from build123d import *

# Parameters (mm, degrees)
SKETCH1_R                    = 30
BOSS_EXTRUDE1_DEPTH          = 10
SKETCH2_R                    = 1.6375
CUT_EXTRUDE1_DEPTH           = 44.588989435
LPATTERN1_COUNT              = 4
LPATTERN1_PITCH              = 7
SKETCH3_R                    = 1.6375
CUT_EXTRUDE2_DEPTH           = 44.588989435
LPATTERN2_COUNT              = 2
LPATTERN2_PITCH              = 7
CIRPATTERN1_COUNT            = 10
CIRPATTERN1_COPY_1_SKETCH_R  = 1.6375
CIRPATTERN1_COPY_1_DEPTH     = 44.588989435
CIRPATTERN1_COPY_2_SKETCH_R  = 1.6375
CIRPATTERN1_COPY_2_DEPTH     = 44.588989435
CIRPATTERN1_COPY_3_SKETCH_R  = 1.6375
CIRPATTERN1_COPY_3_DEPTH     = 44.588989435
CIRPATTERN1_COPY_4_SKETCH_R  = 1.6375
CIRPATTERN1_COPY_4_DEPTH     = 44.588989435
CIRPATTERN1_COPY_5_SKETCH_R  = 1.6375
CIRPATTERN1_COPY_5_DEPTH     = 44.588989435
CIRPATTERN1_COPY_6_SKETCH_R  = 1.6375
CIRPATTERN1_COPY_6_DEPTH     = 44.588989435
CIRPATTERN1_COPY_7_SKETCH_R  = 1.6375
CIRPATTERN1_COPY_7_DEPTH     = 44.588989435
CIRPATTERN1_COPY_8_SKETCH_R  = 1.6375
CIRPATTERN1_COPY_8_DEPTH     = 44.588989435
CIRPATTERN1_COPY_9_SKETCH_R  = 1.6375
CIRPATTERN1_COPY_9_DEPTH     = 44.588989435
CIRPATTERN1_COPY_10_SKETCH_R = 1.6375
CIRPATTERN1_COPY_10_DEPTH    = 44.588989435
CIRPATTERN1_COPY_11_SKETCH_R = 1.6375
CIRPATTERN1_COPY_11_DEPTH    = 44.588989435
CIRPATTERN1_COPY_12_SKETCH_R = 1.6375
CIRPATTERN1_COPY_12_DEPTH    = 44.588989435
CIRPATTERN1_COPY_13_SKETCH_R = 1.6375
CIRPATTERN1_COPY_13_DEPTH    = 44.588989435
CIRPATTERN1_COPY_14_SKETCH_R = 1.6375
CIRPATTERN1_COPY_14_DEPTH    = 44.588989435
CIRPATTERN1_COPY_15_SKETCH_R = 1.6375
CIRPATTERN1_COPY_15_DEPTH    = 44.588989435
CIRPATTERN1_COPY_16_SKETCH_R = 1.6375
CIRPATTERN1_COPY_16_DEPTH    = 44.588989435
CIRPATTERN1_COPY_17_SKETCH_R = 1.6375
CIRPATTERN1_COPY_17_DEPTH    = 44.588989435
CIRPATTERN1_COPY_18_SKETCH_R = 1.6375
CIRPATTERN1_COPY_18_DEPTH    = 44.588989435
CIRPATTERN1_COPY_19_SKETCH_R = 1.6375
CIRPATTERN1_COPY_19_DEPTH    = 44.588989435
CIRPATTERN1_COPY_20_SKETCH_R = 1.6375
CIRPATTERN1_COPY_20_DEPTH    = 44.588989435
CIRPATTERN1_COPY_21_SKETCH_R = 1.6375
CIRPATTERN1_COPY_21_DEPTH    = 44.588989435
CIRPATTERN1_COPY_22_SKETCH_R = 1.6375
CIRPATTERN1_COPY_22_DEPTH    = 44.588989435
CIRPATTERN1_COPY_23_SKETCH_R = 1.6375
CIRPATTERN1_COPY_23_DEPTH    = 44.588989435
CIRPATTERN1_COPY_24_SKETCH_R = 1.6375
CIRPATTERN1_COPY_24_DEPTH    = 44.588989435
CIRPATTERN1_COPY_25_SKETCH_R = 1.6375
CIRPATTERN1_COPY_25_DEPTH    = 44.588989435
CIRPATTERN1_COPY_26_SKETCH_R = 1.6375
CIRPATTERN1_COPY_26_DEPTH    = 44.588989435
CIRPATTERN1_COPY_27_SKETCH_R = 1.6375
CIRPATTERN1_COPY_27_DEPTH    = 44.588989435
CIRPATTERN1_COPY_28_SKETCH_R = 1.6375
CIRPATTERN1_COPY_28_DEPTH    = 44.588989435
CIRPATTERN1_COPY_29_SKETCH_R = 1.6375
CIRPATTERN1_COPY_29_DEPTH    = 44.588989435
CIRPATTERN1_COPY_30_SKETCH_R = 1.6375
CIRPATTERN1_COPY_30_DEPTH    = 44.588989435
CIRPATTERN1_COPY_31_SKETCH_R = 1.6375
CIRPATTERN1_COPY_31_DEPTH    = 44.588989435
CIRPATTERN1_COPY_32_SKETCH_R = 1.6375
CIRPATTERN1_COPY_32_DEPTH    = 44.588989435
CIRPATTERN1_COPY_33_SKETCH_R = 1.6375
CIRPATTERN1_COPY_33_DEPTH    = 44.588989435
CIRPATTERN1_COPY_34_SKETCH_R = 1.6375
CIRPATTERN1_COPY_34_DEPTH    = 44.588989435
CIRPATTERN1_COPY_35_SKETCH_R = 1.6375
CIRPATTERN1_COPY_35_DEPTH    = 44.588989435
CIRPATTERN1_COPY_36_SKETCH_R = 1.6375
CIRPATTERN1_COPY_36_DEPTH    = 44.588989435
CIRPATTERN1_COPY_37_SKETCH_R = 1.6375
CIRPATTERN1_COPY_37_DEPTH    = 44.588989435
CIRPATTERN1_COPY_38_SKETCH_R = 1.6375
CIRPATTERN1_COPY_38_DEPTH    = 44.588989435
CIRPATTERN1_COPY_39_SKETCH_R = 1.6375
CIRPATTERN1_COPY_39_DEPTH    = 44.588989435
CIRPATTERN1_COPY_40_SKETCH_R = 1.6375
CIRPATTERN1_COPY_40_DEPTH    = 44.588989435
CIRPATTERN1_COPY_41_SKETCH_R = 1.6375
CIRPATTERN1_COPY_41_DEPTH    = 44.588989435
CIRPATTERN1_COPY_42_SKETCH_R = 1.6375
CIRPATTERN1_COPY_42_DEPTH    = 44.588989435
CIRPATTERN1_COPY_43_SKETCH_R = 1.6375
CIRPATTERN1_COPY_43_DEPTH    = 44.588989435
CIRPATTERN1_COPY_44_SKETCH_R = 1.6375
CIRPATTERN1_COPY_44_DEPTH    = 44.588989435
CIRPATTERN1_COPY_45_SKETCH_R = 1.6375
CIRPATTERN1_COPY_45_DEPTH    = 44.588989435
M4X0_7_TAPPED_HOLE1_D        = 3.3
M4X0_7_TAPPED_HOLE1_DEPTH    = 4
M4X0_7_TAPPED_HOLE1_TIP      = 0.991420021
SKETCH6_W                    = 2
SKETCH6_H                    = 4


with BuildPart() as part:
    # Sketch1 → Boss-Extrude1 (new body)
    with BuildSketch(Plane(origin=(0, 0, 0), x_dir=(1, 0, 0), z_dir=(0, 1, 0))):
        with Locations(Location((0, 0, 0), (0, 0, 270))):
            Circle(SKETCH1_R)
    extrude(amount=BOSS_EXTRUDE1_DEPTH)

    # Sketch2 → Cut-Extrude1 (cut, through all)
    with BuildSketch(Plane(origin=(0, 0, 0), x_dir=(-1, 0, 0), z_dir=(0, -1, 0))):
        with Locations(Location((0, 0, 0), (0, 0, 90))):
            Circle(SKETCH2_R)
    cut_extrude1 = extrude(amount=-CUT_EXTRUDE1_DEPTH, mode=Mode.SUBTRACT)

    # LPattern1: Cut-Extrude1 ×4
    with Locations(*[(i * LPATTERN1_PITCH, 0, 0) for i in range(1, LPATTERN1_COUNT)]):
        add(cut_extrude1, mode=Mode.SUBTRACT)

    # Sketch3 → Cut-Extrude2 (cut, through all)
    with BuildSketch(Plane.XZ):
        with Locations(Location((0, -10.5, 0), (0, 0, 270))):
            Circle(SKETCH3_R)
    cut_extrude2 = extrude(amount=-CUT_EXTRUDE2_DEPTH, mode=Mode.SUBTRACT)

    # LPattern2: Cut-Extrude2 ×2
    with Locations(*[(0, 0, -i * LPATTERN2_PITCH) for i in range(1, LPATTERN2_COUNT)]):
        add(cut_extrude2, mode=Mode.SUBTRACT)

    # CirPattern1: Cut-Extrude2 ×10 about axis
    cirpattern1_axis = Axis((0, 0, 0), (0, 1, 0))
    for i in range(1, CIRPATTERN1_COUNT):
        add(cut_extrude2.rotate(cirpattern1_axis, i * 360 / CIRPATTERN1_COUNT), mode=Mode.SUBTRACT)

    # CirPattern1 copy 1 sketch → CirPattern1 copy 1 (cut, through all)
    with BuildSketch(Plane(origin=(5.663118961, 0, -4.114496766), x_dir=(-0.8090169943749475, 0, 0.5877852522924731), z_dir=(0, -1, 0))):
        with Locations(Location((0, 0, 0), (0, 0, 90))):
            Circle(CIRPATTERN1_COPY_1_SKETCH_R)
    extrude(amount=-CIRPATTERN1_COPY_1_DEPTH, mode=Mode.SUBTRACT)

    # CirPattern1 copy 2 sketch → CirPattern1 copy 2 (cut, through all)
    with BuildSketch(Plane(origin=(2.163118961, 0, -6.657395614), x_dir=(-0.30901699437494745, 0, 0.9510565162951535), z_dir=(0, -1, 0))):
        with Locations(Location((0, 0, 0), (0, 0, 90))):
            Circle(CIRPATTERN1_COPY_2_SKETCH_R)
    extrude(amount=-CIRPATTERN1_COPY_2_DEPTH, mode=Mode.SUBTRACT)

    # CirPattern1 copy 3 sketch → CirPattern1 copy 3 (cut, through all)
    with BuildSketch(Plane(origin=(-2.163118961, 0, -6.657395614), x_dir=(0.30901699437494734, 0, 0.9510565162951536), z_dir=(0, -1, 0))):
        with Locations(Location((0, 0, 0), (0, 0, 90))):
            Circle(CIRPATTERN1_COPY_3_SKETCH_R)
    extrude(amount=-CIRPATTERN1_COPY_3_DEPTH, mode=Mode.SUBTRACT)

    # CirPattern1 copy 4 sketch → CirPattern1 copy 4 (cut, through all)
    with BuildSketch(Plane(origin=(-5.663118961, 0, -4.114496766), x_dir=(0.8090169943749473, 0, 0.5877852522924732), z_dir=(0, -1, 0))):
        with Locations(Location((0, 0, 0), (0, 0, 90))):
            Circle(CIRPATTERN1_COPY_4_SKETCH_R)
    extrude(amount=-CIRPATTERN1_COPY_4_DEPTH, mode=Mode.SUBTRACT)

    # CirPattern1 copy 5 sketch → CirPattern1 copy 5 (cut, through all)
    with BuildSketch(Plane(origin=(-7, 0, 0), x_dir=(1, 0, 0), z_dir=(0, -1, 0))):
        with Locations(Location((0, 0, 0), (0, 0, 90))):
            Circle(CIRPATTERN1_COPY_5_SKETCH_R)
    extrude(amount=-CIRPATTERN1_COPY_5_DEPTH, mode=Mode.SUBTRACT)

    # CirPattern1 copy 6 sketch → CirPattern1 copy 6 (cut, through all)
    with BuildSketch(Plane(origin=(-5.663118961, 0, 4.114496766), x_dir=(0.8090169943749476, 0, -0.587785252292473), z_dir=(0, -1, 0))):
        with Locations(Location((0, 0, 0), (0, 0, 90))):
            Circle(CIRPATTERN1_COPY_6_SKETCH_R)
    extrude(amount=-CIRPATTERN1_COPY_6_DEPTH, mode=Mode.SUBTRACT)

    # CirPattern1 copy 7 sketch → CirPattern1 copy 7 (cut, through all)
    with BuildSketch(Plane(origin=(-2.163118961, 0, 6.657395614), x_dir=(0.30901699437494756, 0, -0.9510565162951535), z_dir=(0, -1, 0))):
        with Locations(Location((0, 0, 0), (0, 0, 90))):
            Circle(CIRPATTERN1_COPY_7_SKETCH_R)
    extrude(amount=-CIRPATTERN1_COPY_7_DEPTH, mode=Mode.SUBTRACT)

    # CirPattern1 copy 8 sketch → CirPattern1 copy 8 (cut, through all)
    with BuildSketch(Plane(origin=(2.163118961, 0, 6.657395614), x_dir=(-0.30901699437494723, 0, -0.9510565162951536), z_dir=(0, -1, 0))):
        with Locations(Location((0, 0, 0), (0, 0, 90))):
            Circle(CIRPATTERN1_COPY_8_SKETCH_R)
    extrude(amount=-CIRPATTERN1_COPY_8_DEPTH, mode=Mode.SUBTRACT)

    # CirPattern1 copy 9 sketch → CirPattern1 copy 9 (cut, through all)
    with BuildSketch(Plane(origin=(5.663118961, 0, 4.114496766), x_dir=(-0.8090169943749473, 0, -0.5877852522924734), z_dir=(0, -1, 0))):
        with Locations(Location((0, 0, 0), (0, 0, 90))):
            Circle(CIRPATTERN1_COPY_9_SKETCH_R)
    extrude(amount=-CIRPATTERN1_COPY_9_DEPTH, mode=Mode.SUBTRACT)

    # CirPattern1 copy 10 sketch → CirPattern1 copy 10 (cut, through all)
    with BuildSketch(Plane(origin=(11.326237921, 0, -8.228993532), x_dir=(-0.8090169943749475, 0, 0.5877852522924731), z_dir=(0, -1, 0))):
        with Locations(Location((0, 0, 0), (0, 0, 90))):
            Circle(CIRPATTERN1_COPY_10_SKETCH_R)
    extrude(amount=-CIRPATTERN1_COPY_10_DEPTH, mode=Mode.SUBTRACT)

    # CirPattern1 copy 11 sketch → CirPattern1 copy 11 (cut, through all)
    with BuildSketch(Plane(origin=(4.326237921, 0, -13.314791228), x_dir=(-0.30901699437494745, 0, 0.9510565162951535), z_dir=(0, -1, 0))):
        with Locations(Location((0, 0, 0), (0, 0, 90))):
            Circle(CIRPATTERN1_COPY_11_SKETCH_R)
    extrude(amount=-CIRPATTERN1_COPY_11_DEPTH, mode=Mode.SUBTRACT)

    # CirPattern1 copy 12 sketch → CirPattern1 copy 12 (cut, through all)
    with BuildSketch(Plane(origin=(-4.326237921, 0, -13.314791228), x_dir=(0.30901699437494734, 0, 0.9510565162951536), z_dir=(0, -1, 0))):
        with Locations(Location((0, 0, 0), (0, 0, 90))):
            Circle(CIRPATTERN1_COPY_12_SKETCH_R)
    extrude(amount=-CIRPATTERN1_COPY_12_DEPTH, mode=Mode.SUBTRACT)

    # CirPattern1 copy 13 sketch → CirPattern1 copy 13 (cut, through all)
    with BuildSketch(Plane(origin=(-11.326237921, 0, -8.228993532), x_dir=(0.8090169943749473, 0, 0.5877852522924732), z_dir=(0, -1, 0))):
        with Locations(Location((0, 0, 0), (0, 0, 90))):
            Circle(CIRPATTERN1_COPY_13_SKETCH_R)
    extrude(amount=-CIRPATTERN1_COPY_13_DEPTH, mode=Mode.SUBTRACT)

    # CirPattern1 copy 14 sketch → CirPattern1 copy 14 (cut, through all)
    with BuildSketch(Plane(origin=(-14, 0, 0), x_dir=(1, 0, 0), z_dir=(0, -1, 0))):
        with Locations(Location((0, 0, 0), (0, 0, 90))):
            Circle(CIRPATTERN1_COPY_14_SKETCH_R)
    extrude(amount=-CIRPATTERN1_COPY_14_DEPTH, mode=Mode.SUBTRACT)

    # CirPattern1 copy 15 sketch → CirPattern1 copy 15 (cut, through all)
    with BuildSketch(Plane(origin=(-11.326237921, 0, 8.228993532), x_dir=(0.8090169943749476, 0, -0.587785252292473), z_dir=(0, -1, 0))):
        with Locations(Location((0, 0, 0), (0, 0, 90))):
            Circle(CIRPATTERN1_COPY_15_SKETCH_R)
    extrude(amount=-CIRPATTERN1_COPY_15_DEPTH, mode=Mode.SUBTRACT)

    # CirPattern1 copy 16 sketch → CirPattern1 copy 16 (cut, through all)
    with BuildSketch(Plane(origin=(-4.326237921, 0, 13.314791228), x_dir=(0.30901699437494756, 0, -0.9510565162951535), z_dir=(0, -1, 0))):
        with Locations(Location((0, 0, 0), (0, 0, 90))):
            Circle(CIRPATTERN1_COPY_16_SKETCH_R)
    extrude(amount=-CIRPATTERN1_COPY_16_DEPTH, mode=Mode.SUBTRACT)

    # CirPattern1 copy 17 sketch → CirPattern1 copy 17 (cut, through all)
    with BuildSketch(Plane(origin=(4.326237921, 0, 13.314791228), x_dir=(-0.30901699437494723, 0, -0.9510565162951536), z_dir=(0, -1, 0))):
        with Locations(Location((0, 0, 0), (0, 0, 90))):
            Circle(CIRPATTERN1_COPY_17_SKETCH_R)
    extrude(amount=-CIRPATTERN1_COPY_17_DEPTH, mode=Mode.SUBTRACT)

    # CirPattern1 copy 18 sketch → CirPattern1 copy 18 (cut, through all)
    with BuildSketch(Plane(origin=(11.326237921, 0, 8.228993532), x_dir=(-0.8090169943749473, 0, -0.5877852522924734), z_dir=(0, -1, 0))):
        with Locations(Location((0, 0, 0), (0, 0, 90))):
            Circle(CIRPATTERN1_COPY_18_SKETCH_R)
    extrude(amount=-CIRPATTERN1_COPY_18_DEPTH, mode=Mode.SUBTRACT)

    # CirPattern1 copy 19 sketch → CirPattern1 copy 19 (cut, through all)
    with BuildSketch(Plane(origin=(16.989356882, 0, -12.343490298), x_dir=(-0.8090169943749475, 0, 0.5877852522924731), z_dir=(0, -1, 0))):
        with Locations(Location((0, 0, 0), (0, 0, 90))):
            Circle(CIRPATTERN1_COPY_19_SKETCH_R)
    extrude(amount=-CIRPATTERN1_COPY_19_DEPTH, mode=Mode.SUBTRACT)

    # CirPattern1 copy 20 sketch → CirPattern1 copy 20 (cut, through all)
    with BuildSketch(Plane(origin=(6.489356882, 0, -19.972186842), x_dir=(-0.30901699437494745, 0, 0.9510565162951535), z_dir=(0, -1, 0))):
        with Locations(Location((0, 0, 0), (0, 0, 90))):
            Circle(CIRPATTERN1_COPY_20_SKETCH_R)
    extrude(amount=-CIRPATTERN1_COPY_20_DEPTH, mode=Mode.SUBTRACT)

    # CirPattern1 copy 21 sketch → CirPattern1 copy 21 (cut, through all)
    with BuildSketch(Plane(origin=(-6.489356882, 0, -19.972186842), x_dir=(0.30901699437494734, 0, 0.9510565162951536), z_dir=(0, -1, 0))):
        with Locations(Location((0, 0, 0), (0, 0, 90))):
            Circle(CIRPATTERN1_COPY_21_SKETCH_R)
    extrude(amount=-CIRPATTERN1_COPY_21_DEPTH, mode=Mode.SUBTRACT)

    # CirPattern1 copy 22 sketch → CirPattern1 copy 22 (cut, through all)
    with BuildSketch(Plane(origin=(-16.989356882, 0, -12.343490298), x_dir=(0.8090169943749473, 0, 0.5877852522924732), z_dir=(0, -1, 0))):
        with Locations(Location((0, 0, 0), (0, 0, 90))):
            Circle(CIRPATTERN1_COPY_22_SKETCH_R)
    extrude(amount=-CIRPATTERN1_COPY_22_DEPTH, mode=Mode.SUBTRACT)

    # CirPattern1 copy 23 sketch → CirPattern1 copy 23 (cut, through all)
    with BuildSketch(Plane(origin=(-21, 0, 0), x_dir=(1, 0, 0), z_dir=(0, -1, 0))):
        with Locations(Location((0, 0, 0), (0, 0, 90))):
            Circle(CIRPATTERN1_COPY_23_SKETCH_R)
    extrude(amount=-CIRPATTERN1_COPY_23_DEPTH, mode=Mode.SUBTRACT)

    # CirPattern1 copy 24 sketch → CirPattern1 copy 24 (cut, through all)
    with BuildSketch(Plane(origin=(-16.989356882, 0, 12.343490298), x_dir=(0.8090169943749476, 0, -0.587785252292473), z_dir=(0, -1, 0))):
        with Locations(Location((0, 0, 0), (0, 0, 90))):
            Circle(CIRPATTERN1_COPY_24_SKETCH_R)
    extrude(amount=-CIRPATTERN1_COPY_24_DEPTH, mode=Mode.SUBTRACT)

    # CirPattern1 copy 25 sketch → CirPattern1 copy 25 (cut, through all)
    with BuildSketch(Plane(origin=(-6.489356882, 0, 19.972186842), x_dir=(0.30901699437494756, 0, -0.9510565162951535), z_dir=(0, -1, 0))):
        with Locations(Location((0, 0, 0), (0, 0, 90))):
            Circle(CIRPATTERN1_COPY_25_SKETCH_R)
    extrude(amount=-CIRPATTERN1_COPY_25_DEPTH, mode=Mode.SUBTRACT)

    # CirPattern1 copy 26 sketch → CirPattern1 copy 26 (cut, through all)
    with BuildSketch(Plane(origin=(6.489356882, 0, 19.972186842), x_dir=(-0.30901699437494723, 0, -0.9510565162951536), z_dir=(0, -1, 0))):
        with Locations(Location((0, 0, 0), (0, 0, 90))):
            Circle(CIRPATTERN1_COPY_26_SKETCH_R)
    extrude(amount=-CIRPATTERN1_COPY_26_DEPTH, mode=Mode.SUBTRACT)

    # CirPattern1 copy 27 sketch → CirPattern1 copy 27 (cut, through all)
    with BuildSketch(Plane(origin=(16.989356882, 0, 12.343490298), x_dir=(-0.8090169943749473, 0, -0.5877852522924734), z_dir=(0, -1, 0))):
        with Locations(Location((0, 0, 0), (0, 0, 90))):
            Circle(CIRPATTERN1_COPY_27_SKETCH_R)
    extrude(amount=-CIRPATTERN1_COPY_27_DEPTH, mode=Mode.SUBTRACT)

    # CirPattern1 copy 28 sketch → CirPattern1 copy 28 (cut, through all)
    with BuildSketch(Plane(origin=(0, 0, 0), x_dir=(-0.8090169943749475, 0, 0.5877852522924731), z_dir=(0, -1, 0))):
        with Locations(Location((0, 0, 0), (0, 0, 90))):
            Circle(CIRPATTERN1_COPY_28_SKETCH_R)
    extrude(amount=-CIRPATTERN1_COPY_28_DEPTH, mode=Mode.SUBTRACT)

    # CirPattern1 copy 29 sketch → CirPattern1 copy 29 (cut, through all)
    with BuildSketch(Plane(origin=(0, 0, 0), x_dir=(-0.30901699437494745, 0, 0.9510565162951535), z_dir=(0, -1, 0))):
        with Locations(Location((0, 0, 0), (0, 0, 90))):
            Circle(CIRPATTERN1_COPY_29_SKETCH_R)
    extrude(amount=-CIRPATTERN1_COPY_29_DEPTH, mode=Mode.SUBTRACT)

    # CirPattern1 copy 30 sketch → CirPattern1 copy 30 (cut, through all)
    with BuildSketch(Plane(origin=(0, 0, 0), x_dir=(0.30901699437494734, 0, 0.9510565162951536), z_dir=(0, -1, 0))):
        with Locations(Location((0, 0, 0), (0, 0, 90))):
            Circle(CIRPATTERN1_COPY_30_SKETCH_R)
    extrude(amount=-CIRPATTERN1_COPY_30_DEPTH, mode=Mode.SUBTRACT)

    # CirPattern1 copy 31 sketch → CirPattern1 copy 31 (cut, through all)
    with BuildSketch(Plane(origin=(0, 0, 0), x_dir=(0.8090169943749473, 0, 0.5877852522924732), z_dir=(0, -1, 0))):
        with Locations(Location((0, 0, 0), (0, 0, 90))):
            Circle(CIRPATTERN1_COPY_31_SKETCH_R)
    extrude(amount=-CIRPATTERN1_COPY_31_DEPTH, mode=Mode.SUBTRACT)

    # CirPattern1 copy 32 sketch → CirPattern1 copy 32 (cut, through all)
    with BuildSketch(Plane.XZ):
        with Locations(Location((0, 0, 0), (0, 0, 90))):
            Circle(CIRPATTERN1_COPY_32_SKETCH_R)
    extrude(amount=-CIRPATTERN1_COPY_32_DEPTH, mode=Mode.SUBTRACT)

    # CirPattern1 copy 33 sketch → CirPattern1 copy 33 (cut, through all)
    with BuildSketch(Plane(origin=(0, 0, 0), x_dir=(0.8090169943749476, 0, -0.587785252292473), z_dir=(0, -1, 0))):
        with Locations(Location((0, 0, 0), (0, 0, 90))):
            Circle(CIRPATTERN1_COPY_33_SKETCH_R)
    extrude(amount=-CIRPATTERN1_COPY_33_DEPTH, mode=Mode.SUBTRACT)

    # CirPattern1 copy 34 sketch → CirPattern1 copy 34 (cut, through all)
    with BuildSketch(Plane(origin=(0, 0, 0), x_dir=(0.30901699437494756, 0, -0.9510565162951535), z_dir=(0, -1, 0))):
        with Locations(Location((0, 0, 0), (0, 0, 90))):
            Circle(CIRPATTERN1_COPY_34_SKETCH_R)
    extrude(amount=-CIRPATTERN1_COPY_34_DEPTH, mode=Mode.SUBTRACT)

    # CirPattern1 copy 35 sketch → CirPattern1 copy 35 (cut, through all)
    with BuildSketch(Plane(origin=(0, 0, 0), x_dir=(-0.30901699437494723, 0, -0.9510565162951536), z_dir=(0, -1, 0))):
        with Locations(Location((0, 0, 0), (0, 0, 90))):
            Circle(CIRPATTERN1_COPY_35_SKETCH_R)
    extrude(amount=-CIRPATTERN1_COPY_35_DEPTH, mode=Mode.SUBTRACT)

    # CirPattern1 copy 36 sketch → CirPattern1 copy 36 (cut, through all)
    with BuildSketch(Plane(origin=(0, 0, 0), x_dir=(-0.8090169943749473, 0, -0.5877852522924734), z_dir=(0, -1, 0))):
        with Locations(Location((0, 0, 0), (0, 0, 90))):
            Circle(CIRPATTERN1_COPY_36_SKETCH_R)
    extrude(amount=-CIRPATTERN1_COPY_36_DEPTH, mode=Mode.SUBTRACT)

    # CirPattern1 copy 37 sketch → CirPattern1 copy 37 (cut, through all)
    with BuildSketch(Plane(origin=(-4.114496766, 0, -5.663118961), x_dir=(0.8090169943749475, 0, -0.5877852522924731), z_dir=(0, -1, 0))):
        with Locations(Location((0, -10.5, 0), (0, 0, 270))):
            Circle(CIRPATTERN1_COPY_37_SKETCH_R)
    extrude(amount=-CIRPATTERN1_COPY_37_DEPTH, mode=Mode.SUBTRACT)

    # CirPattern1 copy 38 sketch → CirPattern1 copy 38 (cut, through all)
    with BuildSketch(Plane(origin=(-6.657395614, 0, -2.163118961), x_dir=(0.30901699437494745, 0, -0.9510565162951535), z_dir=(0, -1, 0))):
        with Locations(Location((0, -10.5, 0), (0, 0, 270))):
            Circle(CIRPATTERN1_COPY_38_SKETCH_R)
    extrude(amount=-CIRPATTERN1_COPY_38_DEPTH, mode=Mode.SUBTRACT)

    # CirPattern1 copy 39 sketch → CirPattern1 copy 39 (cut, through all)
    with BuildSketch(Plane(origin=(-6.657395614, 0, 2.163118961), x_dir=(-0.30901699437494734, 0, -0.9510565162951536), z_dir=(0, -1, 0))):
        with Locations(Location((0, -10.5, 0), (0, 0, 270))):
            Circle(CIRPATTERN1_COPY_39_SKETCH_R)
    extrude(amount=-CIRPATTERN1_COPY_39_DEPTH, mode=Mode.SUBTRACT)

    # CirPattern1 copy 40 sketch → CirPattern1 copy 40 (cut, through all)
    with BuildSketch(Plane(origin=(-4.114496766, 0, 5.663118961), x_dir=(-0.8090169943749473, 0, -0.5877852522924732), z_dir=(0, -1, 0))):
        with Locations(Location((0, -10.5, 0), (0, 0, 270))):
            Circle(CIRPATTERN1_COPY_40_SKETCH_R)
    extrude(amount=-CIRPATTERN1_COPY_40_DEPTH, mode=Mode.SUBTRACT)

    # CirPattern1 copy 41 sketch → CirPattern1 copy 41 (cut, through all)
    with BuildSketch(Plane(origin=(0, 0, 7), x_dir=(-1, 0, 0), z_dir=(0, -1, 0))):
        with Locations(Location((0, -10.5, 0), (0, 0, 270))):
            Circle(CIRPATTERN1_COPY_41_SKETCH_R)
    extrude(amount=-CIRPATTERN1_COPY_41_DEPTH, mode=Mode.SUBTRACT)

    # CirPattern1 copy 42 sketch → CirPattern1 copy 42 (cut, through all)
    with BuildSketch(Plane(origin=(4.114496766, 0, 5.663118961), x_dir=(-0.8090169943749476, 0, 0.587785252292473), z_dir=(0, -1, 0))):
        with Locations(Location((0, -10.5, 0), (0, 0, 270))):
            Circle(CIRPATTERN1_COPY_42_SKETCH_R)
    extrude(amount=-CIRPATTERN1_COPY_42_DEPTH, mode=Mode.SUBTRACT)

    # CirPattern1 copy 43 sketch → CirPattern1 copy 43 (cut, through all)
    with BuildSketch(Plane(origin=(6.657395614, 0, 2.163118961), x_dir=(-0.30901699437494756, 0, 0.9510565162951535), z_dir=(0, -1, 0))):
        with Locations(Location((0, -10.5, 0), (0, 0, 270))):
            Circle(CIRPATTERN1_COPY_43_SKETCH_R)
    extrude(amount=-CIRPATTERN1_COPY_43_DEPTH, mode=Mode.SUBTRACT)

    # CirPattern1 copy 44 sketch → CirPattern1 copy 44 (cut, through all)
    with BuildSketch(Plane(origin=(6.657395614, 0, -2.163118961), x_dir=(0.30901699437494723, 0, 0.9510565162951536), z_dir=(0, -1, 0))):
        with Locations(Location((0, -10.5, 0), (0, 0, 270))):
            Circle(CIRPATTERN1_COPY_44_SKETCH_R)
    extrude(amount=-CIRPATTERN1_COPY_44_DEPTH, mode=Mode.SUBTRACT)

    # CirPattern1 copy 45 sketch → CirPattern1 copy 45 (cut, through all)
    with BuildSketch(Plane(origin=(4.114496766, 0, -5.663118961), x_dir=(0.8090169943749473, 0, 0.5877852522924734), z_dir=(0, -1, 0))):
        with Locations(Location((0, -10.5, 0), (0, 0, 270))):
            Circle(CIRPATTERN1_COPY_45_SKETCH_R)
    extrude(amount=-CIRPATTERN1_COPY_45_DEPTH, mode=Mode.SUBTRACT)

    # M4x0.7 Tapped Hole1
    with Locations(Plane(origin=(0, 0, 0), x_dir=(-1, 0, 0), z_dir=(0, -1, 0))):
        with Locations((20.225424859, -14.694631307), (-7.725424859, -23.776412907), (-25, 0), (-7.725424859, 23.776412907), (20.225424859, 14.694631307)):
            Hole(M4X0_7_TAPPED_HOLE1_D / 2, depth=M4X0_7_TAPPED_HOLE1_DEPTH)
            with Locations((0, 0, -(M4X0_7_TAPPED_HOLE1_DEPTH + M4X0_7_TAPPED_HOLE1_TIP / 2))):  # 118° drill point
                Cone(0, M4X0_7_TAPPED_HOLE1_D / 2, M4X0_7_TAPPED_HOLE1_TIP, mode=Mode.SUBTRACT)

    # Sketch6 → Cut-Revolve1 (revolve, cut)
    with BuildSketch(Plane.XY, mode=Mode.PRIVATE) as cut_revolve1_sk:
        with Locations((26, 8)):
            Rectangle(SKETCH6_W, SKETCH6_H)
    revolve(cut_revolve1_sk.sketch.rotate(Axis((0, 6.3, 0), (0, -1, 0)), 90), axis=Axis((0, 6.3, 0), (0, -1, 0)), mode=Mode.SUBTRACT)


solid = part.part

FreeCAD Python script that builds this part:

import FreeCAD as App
import Part
import Sketcher
from FreeCAD import Vector


def add_polygon(sketch, points):
    """Adds a closed chain of lines whose ends are joined by coincident constraints."""
    first, n = sketch.GeometryCount, len(points)
    for a, b in zip(points, points[1:] + points[:1]):
        sketch.addGeometry(Part.LineSegment(App.Vector(*a, 0), App.Vector(*b, 0)), False)
    for i in range(n):
        sketch.addConstraint(Sketcher.Constraint("Coincident", first + i, 2, first + (i + 1) % n, 1))

doc = App.newDocument("Part")
body = doc.addObject("PartDesign::Body", "Body")

sketch1 = body.newObject("Sketcher::SketchObject", "Sketch")
sketch1.AttachmentSupport = (doc.getObject("XZ_Plane"), [""])
sketch1.MapMode = "FlatFace"
sketch1.addGeometry(Part.Circle(Vector(0, 0, 0), Vector(0, 0, 1), 30), False)
sketch1.addConstraint(Sketcher.Constraint("Coincident", 0, 3, -1, 1))
sketch1.addConstraint(Sketcher.Constraint("Diameter", 0, 60.0))
pad1 = body.newObject("PartDesign::Pad", "Pad")
pad1.Profile = sketch1
pad1.Length = 10
pad1.Reversed = True

sketch2 = body.newObject("Sketcher::SketchObject", "Sketch001")
sketch2.AttachmentSupport = (doc.getObject("XZ_Plane"), [""])
sketch2.MapMode = "FlatFace"
sketch2.addGeometry(Part.Circle(Vector(0, 0, 0), Vector(0, 0, 1), 1.6375), False)
sketch2.addConstraint(Sketcher.Constraint("Coincident", 0, 3, -1, 1))
sketch2.addConstraint(Sketcher.Constraint("Diameter", 0, 3.275))
pocket1 = body.newObject("PartDesign::Pocket", "Pocket")
pocket1.Profile = sketch2
pocket1.Type = "ThroughAll"
doc.recompute()

linearpattern = body.newObject("PartDesign::LinearPattern", "LinearPattern")
linearpattern.Originals = [pocket1]
linearpattern.Direction = (doc.getObject("X_Axis"), [""])
linearpattern.Mode = "offset"
linearpattern.Offset = 7
linearpattern.Occurrences = 4
body.Tip = linearpattern

sketch3 = body.newObject("Sketcher::SketchObject", "Sketch002")
sketch3.AttachmentSupport = (doc.getObject("XZ_Plane"), [""])
sketch3.MapMode = "FlatFace"
sketch3.addGeometry(Part.Circle(Vector(0, -10.5, 0), Vector(0, 0, 1), 1.6375), False)
sketch3.addConstraint(Sketcher.Constraint("PointOnObject", 0, 3, -2))
sketch3.addConstraint(Sketcher.Constraint("Diameter", 0, 3.275))
sketch3.addConstraint(Sketcher.Constraint("DistanceY", 0, 3, -1, 1, 10.5))
pocket2 = body.newObject("PartDesign::Pocket", "Pocket001")
pocket2.Profile = sketch3
pocket2.Type = "ThroughAll"
doc.recompute()

linearpattern2 = body.newObject("PartDesign::LinearPattern", "LinearPattern001")
linearpattern2.Originals = [pocket2]
linearpattern2.Direction = (doc.getObject("Z_Axis"), [""])
linearpattern2.Mode = "offset"
linearpattern2.Offset = 7
linearpattern2.Occurrences = 2
linearpattern2.Reversed = True
body.Tip = linearpattern2
doc.recompute()

polarpattern = body.newObject("PartDesign::PolarPattern", "PolarPattern")
polarpattern.Originals = [pocket2]
polarpattern.Axis = (doc.getObject("Y_Axis"), [""])
polarpattern.Angle = 360
polarpattern.Occurrences = 10
body.Tip = polarpattern

sketch4 = body.newObject("Sketcher::SketchObject", "Sketch003")
sketch4.AttachmentSupport = (doc.getObject("XZ_Plane"), [""])
sketch4.MapMode = "FlatFace"
sketch4.addGeometry(Part.Circle(Vector(5.663119, -4.114497, 0), Vector(0, 0, 1), 1.6375), False)
sketch4.addConstraint(Sketcher.Constraint("Diameter", 0, 3.275))
sketch4.addConstraint(Sketcher.Constraint("DistanceX", -1, 1, 0, 3, 5.663119))
sketch4.addConstraint(Sketcher.Constraint("DistanceY", 0, 3, -1, 1, 4.114497))
pocket3 = body.newObject("PartDesign::Pocket", "Pocket002")
pocket3.Profile = sketch4
pocket3.Type = "ThroughAll"

sketch5 = body.newObject("Sketcher::SketchObject", "Sketch004")
sketch5.AttachmentSupport = (doc.getObject("XZ_Plane"), [""])
sketch5.MapMode = "FlatFace"
sketch5.addGeometry(Part.Circle(Vector(2.163119, -6.657396, 0), Vector(0, 0, 1), 1.6375), False)
sketch5.addConstraint(Sketcher.Constraint("Diameter", 0, 3.275))
sketch5.addConstraint(Sketcher.Constraint("DistanceX", -1, 1, 0, 3, 2.163119))
sketch5.addConstraint(Sketcher.Constraint("DistanceY", 0, 3, -1, 1, 6.657396))
pocket4 = body.newObject("PartDesign::Pocket", "Pocket003")
pocket4.Profile = sketch5
pocket4.Type = "ThroughAll"

sketch6 = body.newObject("Sketcher::SketchObject", "Sketch005")
sketch6.AttachmentSupport = (doc.getObject("XZ_Plane"), [""])
sketch6.MapMode = "FlatFace"
sketch6.addGeometry(Part.Circle(Vector(-2.163119, -6.657396, 0), Vector(0, 0, 1), 1.6375), False)
sketch6.addConstraint(Sketcher.Constraint("Diameter", 0, 3.275))
sketch6.addConstraint(Sketcher.Constraint("DistanceX", 0, 3, -1, 1, 2.163119))
sketch6.addConstraint(Sketcher.Constraint("DistanceY", 0, 3, -1, 1, 6.657396))
pocket5 = body.newObject("PartDesign::Pocket", "Pocket004")
pocket5.Profile = sketch6
pocket5.Type = "ThroughAll"

sketch7 = body.newObject("Sketcher::SketchObject", "Sketch006")
sketch7.AttachmentSupport = (doc.getObject("XZ_Plane"), [""])
sketch7.MapMode = "FlatFace"
sketch7.addGeometry(Part.Circle(Vector(-5.663119, -4.114497, 0), Vector(0, 0, 1), 1.6375), False)
sketch7.addConstraint(Sketcher.Constraint("Diameter", 0, 3.275))
sketch7.addConstraint(Sketcher.Constraint("DistanceX", 0, 3, -1, 1, 5.663119))
sketch7.addConstraint(Sketcher.Constraint("DistanceY", 0, 3, -1, 1, 4.114497))
pocket6 = body.newObject("PartDesign::Pocket", "Pocket005")
pocket6.Profile = sketch7
pocket6.Type = "ThroughAll"

sketch8 = body.newObject("Sketcher::SketchObject", "Sketch007")
sketch8.AttachmentSupport = (doc.getObject("XZ_Plane"), [""])
sketch8.MapMode = "FlatFace"
sketch8.addGeometry(Part.Circle(Vector(-7, 0, 0), Vector(0, 0, 1), 1.6375), False)
sketch8.addConstraint(Sketcher.Constraint("PointOnObject", 0, 3, -1))
sketch8.addConstraint(Sketcher.Constraint("Diameter", 0, 3.275))
sketch8.addConstraint(Sketcher.Constraint("DistanceX", 0, 3, -1, 1, 7.0))
pocket7 = body.newObject("PartDesign::Pocket", "Pocket006")
pocket7.Profile = sketch8
pocket7.Type = "ThroughAll"

sketch9 = body.newObject("Sketcher::SketchObject", "Sketch008")
sketch9.AttachmentSupport = (doc.getObject("XZ_Plane"), [""])
sketch9.MapMode = "FlatFace"
sketch9.addGeometry(Part.Circle(Vector(-5.663119, 4.114497, 0), Vector(0, 0, 1), 1.6375), False)
sketch9.addConstraint(Sketcher.Constraint("Diameter", 0, 3.275))
sketch9.addConstraint(Sketcher.Constraint("DistanceX", 0, 3, -1, 1, 5.663119))
sketch9.addConstraint(Sketcher.Constraint("DistanceY", -1, 1, 0, 3, 4.114497))
pocket8 = body.newObject("PartDesign::Pocket", "Pocket007")
pocket8.Profile = sketch9
pocket8.Type = "ThroughAll"

sketch10 = body.newObject("Sketcher::SketchObject", "Sketch009")
sketch10.AttachmentSupport = (doc.getObject("XZ_Plane"), [""])
sketch10.MapMode = "FlatFace"
sketch10.addGeometry(Part.Circle(Vector(-2.163119, 6.657396, 0), Vector(0, 0, 1), 1.6375), False)
sketch10.addConstraint(Sketcher.Constraint("Diameter", 0, 3.275))
sketch10.addConstraint(Sketcher.Constraint("DistanceX", 0, 3, -1, 1, 2.163119))
sketch10.addConstraint(Sketcher.Constraint("DistanceY", -1, 1, 0, 3, 6.657396))
pocket9 = body.newObject("PartDesign::Pocket", "Pocket008")
pocket9.Profile = sketch10
pocket9.Type = "ThroughAll"

sketch11 = body.newObject("Sketcher::SketchObject", "Sketch010")
sketch11.AttachmentSupport = (doc.getObject("XZ_Plane"), [""])
sketch11.MapMode = "FlatFace"
sketch11.addGeometry(Part.Circle(Vector(2.163119, 6.657396, 0), Vector(0, 0, 1), 1.6375), False)
sketch11.addConstraint(Sketcher.Constraint("Diameter", 0, 3.275))
sketch11.addConstraint(Sketcher.Constraint("DistanceX", -1, 1, 0, 3, 2.163119))
sketch11.addConstraint(Sketcher.Constraint("DistanceY", -1, 1, 0, 3, 6.657396))
pocket10 = body.newObject("PartDesign::Pocket", "Pocket009")
pocket10.Profile = sketch11
pocket10.Type = "ThroughAll"

sketch12 = body.newObject("Sketcher::SketchObject", "Sketch011")
sketch12.AttachmentSupport = (doc.getObject("XZ_Plane"), [""])
sketch12.MapMode = "FlatFace"
sketch12.addGeometry(Part.Circle(Vector(5.663119, 4.114497, 0), Vector(0, 0, 1), 1.6375), False)
sketch12.addConstraint(Sketcher.Constraint("Diameter", 0, 3.275))
sketch12.addConstraint(Sketcher.Constraint("DistanceX", -1, 1, 0, 3, 5.663119))
sketch12.addConstraint(Sketcher.Constraint("DistanceY", -1, 1, 0, 3, 4.114497))
pocket11 = body.newObject("PartDesign::Pocket", "Pocket010")
pocket11.Profile = sketch12
pocket11.Type = "ThroughAll"

sketch13 = body.newObject("Sketcher::SketchObject", "Sketch012")
sketch13.AttachmentSupport = (doc.getObject("XZ_Plane"), [""])
sketch13.MapMode = "FlatFace"
sketch13.addGeometry(Part.Circle(Vector(11.326238, -8.228994, 0), Vector(0, 0, 1), 1.6375), False)
sketch13.addConstraint(Sketcher.Constraint("Diameter", 0, 3.275))
sketch13.addConstraint(Sketcher.Constraint("DistanceX", -1, 1, 0, 3, 11.326238))
sketch13.addConstraint(Sketcher.Constraint("DistanceY", 0, 3, -1, 1, 8.228994))
pocket12 = body.newObject("PartDesign::Pocket", "Pocket011")
pocket12.Profile = sketch13
pocket12.Type = "ThroughAll"

sketch14 = body.newObject("Sketcher::SketchObject", "Sketch013")
sketch14.AttachmentSupport = (doc.getObject("XZ_Plane"), [""])
sketch14.MapMode = "FlatFace"
sketch14.addGeometry(Part.Circle(Vector(4.326238, -13.314791, 0), Vector(0, 0, 1), 1.6375), False)
sketch14.addConstraint(Sketcher.Constraint("Diameter", 0, 3.275))
sketch14.addConstraint(Sketcher.Constraint("DistanceY", 0, 3, -1, 1, 13.314791))
sketch14.addConstraint(Sketcher.Constraint("DistanceX", -1, 1, 0, 3, 4.326238))
pocket13 = body.newObject("PartDesign::Pocket", "Pocket012")
pocket13.Profile = sketch14
pocket13.Type = "ThroughAll"

sketch15 = body.newObject("Sketcher::SketchObject", "Sketch014")
sketch15.AttachmentSupport = (doc.getObject("XZ_Plane"), [""])
sketch15.MapMode = "FlatFace"
sketch15.addGeometry(Part.Circle(Vector(-4.326238, -13.314791, 0), Vector(0, 0, 1), 1.6375), False)
sketch15.addConstraint(Sketcher.Constraint("Diameter", 0, 3.275))
sketch15.addConstraint(Sketcher.Constraint("DistanceY", 0, 3, -1, 1, 13.314791))
sketch15.addConstraint(Sketcher.Constraint("DistanceX", 0, 3, -1, 1, 4.326238))
pocket14 = body.newObject("PartDesign::Pocket", "Pocket013")
pocket14.Profile = sketch15
pocket14.Type = "ThroughAll"

sketch16 = body.newObject("Sketcher::SketchObject", "Sketch015")
sketch16.AttachmentSupport = (doc.getObject("XZ_Plane"), [""])
sketch16.MapMode = "FlatFace"
sketch16.addGeometry(Part.Circle(Vector(-11.326238, -8.228994, 0), Vector(0, 0, 1), 1.6375), False)
sketch16.addConstraint(Sketcher.Constraint("Diameter", 0, 3.275))
sketch16.addConstraint(Sketcher.Constraint("DistanceX", 0, 3, -1, 1, 11.326238))
sketch16.addConstraint(Sketcher.Constraint("DistanceY", 0, 3, -1, 1, 8.228994))
pocket15 = body.newObject("PartDesign::Pocket", "Pocket014")
pocket15.Profile = sketch16
pocket15.Type = "ThroughAll"

sketch17 = body.newObject("Sketcher::SketchObject", "Sketch016")
sketch17.AttachmentSupport = (doc.getObject("XZ_Plane"), [""])
sketch17.MapMode = "FlatFace"
sketch17.addGeometry(Part.Circle(Vector(-14, 0, 0), Vector(0, 0, 1), 1.6375), False)
sketch17.addConstraint(Sketcher.Constraint("PointOnObject", 0, 3, -1))
sketch17.addConstraint(Sketcher.Constraint("Diameter", 0, 3.275))
sketch17.addConstraint(Sketcher.Constraint("DistanceX", 0, 3, -1, 1, 14.0))
pocket16 = body.newObject("PartDesign::Pocket", "Pocket015")
pocket16.Profile = sketch17
pocket16.Type = "ThroughAll"

sketch18 = body.newObject("Sketcher::SketchObject", "Sketch017")
sketch18.AttachmentSupport = (doc.getObject("XZ_Plane"), [""])
sketch18.MapMode = "FlatFace"
sketch18.addGeometry(Part.Circle(Vector(-11.326238, 8.228994, 0), Vector(0, 0, 1), 1.6375), False)
sketch18.addConstraint(Sketcher.Constraint("Diameter", 0, 3.275))
sketch18.addConstraint(Sketcher.Constraint("DistanceX", 0, 3, -1, 1, 11.326238))
sketch18.addConstraint(Sketcher.Constraint("DistanceY", -1, 1, 0, 3, 8.228994))
pocket17 = body.newObject("PartDesign::Pocket", "Pocket016")
pocket17.Profile = sketch18
pocket17.Type = "ThroughAll"

sketch19 = body.newObject("Sketcher::SketchObject", "Sketch018")
sketch19.AttachmentSupport = (doc.getObject("XZ_Plane"), [""])
sketch19.MapMode = "FlatFace"
sketch19.addGeometry(Part.Circle(Vector(-4.326238, 13.314791, 0), Vector(0, 0, 1), 1.6375), False)
sketch19.addConstraint(Sketcher.Constraint("Diameter", 0, 3.275))
sketch19.addConstraint(Sketcher.Constraint("DistanceY", -1, 1, 0, 3, 13.314791))
sketch19.addConstraint(Sketcher.Constraint("DistanceX", 0, 3, -1, 1, 4.326238))
pocket18 = body.newObject("PartDesign::Pocket", "Pocket017")
pocket18.Profile = sketch19
pocket18.Type = "ThroughAll"

sketch20 = body.newObject("Sketcher::SketchObject", "Sketch019")
sketch20.AttachmentSupport = (doc.getObject("XZ_Plane"), [""])
sketch20.MapMode = "FlatFace"
sketch20.addGeometry(Part.Circle(Vector(4.326238, 13.314791, 0), Vector(0, 0, 1), 1.6375), False)
sketch20.addConstraint(Sketcher.Constraint("Diameter", 0, 3.275))
sketch20.addConstraint(Sketcher.Constraint("DistanceY", -1, 1, 0, 3, 13.314791))
sketch20.addConstraint(Sketcher.Constraint("DistanceX", -1, 1, 0, 3, 4.326238))
pocket19 = body.newObject("PartDesign::Pocket", "Pocket018")
pocket19.Profile = sketch20
pocket19.Type = "ThroughAll"

sketch21 = body.newObject("Sketcher::SketchObject", "Sketch020")
sketch21.AttachmentSupport = (doc.getObject("XZ_Plane"), [""])
sketch21.MapMode = "FlatFace"
sketch21.addGeometry(Part.Circle(Vector(11.326238, 8.228994, 0), Vector(0, 0, 1), 1.6375), False)
sketch21.addConstraint(Sketcher.Constraint("Diameter", 0, 3.275))
sketch21.addConstraint(Sketcher.Constraint("DistanceX", -1, 1, 0, 3, 11.326238))
sketch21.addConstraint(Sketcher.Constraint("DistanceY", -1, 1, 0, 3, 8.228994))
pocket20 = body.newObject("PartDesign::Pocket", "Pocket019")
pocket20.Profile = sketch21
pocket20.Type = "ThroughAll"

sketch22 = body.newObject("Sketcher::SketchObject", "Sketch021")
sketch22.AttachmentSupport = (doc.getObject("XZ_Plane"), [""])
sketch22.MapMode = "FlatFace"
sketch22.addGeometry(Part.Circle(Vector(16.989357, -12.34349, 0), Vector(0, 0, 1), 1.6375), False)
sketch22.addConstraint(Sketcher.Constraint("Diameter", 0, 3.275))
sketch22.addConstraint(Sketcher.Constraint("DistanceY", 0, 3, -1, 1, 12.34349))
sketch22.addConstraint(Sketcher.Constraint("DistanceX", -1, 1, 0, 3, 16.989357))
pocket21 = body.newObject("PartDesign::Pocket", "Pocket020")
pocket21.Profile = sketch22
pocket21.Type = "ThroughAll"

sketch23 = body.newObject("Sketcher::SketchObject", "Sketch022")
sketch23.AttachmentSupport = (doc.getObject("XZ_Plane"), [""])
sketch23.MapMode = "FlatFace"
sketch23.addGeometry(Part.Circle(Vector(6.489357, -19.972187, 0), Vector(0, 0, 1), 1.6375), False)
sketch23.addConstraint(Sketcher.Constraint("Diameter", 0, 3.275))
sketch23.addConstraint(Sketcher.Constraint("DistanceX", -1, 1, 0, 3, 6.489357))
sketch23.addConstraint(Sketcher.Constraint("DistanceY", 0, 3, -1, 1, 19.972187))
pocket22 = body.newObject("PartDesign::Pocket", "Pocket021")
pocket22.Profile = sketch23
pocket22.Type = "ThroughAll"

sketch24 = body.newObject("Sketcher::SketchObject", "Sketch023")
sketch24.AttachmentSupport = (doc.getObject("XZ_Plane"), [""])
sketch24.MapMode = "FlatFace"
sketch24.addGeometry(Part.Circle(Vector(-6.489357, -19.972187, 0), Vector(0, 0, 1), 1.6375), False)
sketch24.addConstraint(Sketcher.Constraint("Diameter", 0, 3.275))
sketch24.addConstraint(Sketcher.Constraint("DistanceX", 0, 3, -1, 1, 6.489357))
sketch24.addConstraint(Sketcher.Constraint("DistanceY", 0, 3, -1, 1, 19.972187))
pocket23 = body.newObject("PartDesign::Pocket", "Pocket022")
pocket23.Profile = sketch24
pocket23.Type = "ThroughAll"

sketch25 = body.newObject("Sketcher::SketchObject", "Sketch024")
sketch25.AttachmentSupport = (doc.getObject("XZ_Plane"), [""])
sketch25.MapMode = "FlatFace"
sketch25.addGeometry(Part.Circle(Vector(-16.989357, -12.34349, 0), Vector(0, 0, 1), 1.6375), False)
sketch25.addConstraint(Sketcher.Constraint("Diameter", 0, 3.275))
sketch25.addConstraint(Sketcher.Constraint("DistanceY", 0, 3, -1, 1, 12.34349))
sketch25.addConstraint(Sketcher.Constraint("DistanceX", 0, 3, -1, 1, 16.989357))
pocket24 = body.newObject("PartDesign::Pocket", "Pocket023")
pocket24.Profile = sketch25
pocket24.Type = "ThroughAll"

sketch26 = body.newObject("Sketcher::SketchObject", "Sketch025")
sketch26.AttachmentSupport = (doc.getObject("XZ_Plane"), [""])
sketch26.MapMode = "FlatFace"
sketch26.addGeometry(Part.Circle(Vector(-21, 0, 0), Vector(0, 0, 1), 1.6375), False)
sketch26.addConstraint(Sketcher.Constraint("PointOnObject", 0, 3, -1))
sketch26.addConstraint(Sketcher.Constraint("Diameter", 0, 3.275))
sketch26.addConstraint(Sketcher.Constraint("DistanceX", 0, 3, -1, 1, 21.0))
pocket25 = body.newObject("PartDesign::Pocket", "Pocket024")
pocket25.Profile = sketch26
pocket25.Type = "ThroughAll"

sketch27 = body.newObject("Sketcher::SketchObject", "Sketch026")
sketch27.AttachmentSupport = (doc.getObject("XZ_Plane"), [""])
sketch27.MapMode = "FlatFace"
sketch27.addGeometry(Part.Circle(Vector(-16.989357, 12.34349, 0), Vector(0, 0, 1), 1.6375), False)
sketch27.addConstraint(Sketcher.Constraint("Diameter", 0, 3.275))
sketch27.addConstraint(Sketcher.Constraint("DistanceY", -1, 1, 0, 3, 12.34349))
sketch27.addConstraint(Sketcher.Constraint("DistanceX", 0, 3, -1, 1, 16.989357))
pocket26 = body.newObject("PartDesign::Pocket", "Pocket025")
pocket26.Profile = sketch27
pocket26.Type = "ThroughAll"

sketch28 = body.newObject("Sketcher::SketchObject", "Sketch027")
sketch28.AttachmentSupport = (doc.getObject("XZ_Plane"), [""])
sketch28.MapMode = "FlatFace"
sketch28.addGeometry(Part.Circle(Vector(-6.489357, 19.972187, 0), Vector(0, 0, 1), 1.6375), False)
sketch28.addConstraint(Sketcher.Constraint("Diameter", 0, 3.275))
sketch28.addConstraint(Sketcher.Constraint("DistanceX", 0, 3, -1, 1, 6.489357))
sketch28.addConstraint(Sketcher.Constraint("DistanceY", -1, 1, 0, 3, 19.972187))
pocket27 = body.newObject("PartDesign::Pocket", "Pocket026")
pocket27.Profile = sketch28
pocket27.Type = "ThroughAll"

sketch29 = body.newObject("Sketcher::SketchObject", "Sketch028")
sketch29.AttachmentSupport = (doc.getObject("XZ_Plane"), [""])
sketch29.MapMode = "FlatFace"
sketch29.addGeometry(Part.Circle(Vector(6.489357, 19.972187, 0), Vector(0, 0, 1), 1.6375), False)
sketch29.addConstraint(Sketcher.Constraint("Diameter", 0, 3.275))
sketch29.addConstraint(Sketcher.Constraint("DistanceX", -1, 1, 0, 3, 6.489357))
sketch29.addConstraint(Sketcher.Constraint("DistanceY", -1, 1, 0, 3, 19.972187))
pocket28 = body.newObject("PartDesign::Pocket", "Pocket027")
pocket28.Profile = sketch29
pocket28.Type = "ThroughAll"

sketch30 = body.newObject("Sketcher::SketchObject", "Sketch029")
sketch30.AttachmentSupport = (doc.getObject("XZ_Plane"), [""])
sketch30.MapMode = "FlatFace"
sketch30.addGeometry(Part.Circle(Vector(16.989357, 12.34349, 0), Vector(0, 0, 1), 1.6375), False)
sketch30.addConstraint(Sketcher.Constraint("Diameter", 0, 3.275))
sketch30.addConstraint(Sketcher.Constraint("DistanceY", -1, 1, 0, 3, 12.34349))
sketch30.addConstraint(Sketcher.Constraint("DistanceX", -1, 1, 0, 3, 16.989357))
pocket29 = body.newObject("PartDesign::Pocket", "Pocket028")
pocket29.Profile = sketch30
pocket29.Type = "ThroughAll"

sketch31 = body.newObject("Sketcher::SketchObject", "Sketch030")
sketch31.AttachmentSupport = (doc.getObject("XZ_Plane"), [""])
sketch31.MapMode = "FlatFace"
sketch31.addGeometry(Part.Circle(Vector(0, 0, 0), Vector(0, 0, 1), 1.6375), False)
sketch31.addConstraint(Sketcher.Constraint("Coincident", 0, 3, -1, 1))
sketch31.addConstraint(Sketcher.Constraint("Diameter", 0, 3.275))
pocket30 = body.newObject("PartDesign::Pocket", "Pocket029")
pocket30.Profile = sketch31
pocket30.Type = "ThroughAll"

sketch32 = body.newObject("Sketcher::SketchObject", "Sketch031")
sketch32.AttachmentSupport = (doc.getObject("XZ_Plane"), [""])
sketch32.MapMode = "FlatFace"
sketch32.addGeometry(Part.Circle(Vector(0, 0, 0), Vector(0, 0, 1), 1.6375), False)
sketch32.addConstraint(Sketcher.Constraint("Coincident", 0, 3, -1, 1))
sketch32.addConstraint(Sketcher.Constraint("Diameter", 0, 3.275))
pocket31 = body.newObject("PartDesign::Pocket", "Pocket030")
pocket31.Profile = sketch32
pocket31.Type = "ThroughAll"

sketch33 = body.newObject("Sketcher::SketchObject", "Sketch032")
sketch33.AttachmentSupport = (doc.getObject("XZ_Plane"), [""])
sketch33.MapMode = "FlatFace"
sketch33.addGeometry(Part.Circle(Vector(0, 0, 0), Vector(0, 0, 1), 1.6375), False)
sketch33.addConstraint(Sketcher.Constraint("Coincident", 0, 3, -1, 1))
sketch33.addConstraint(Sketcher.Constraint("Diameter", 0, 3.275))
pocket32 = body.newObject("PartDesign::Pocket", "Pocket031")
pocket32.Profile = sketch33
pocket32.Type = "ThroughAll"

sketch34 = body.newObject("Sketcher::SketchObject", "Sketch033")
sketch34.AttachmentSupport = (doc.getObject("XZ_Plane"), [""])
sketch34.MapMode = "FlatFace"
sketch34.addGeometry(Part.Circle(Vector(0, 0, 0), Vector(0, 0, 1), 1.6375), False)
sketch34.addConstraint(Sketcher.Constraint("Coincident", 0, 3, -1, 1))
sketch34.addConstraint(Sketcher.Constraint("Diameter", 0, 3.275))
pocket33 = body.newObject("PartDesign::Pocket", "Pocket032")
pocket33.Profile = sketch34
pocket33.Type = "ThroughAll"

sketch35 = body.newObject("Sketcher::SketchObject", "Sketch034")
sketch35.AttachmentSupport = (doc.getObject("XZ_Plane"), [""])
sketch35.MapMode = "FlatFace"
sketch35.addGeometry(Part.Circle(Vector(0, 0, 0), Vector(0, 0, 1), 1.6375), False)
sketch35.addConstraint(Sketcher.Constraint("Coincident", 0, 3, -1, 1))
sketch35.addConstraint(Sketcher.Constraint("Diameter", 0, 3.275))
pocket34 = body.newObject("PartDesign::Pocket", "Pocket033")
pocket34.Profile = sketch35
pocket34.Type = "ThroughAll"

sketch36 = body.newObject("Sketcher::SketchObject", "Sketch035")
sketch36.AttachmentSupport = (doc.getObject("XZ_Plane"), [""])
sketch36.MapMode = "FlatFace"
sketch36.addGeometry(Part.Circle(Vector(0, 0, 0), Vector(0, 0, 1), 1.6375), False)
sketch36.addConstraint(Sketcher.Constraint("Coincident", 0, 3, -1, 1))
sketch36.addConstraint(Sketcher.Constraint("Diameter", 0, 3.275))
pocket35 = body.newObject("PartDesign::Pocket", "Pocket034")
pocket35.Profile = sketch36
pocket35.Type = "ThroughAll"

sketch37 = body.newObject("Sketcher::SketchObject", "Sketch036")
sketch37.AttachmentSupport = (doc.getObject("XZ_Plane"), [""])
sketch37.MapMode = "FlatFace"
sketch37.addGeometry(Part.Circle(Vector(0, 0, 0), Vector(0, 0, 1), 1.6375), False)
sketch37.addConstraint(Sketcher.Constraint("Coincident", 0, 3, -1, 1))
sketch37.addConstraint(Sketcher.Constraint("Diameter", 0, 3.275))
pocket36 = body.newObject("PartDesign::Pocket", "Pocket035")
pocket36.Profile = sketch37
pocket36.Type = "ThroughAll"

sketch38 = body.newObject("Sketcher::SketchObject", "Sketch037")
sketch38.AttachmentSupport = (doc.getObject("XZ_Plane"), [""])
sketch38.MapMode = "FlatFace"
sketch38.addGeometry(Part.Circle(Vector(0, 0, 0), Vector(0, 0, 1), 1.6375), False)
sketch38.addConstraint(Sketcher.Constraint("Coincident", 0, 3, -1, 1))
sketch38.addConstraint(Sketcher.Constraint("Diameter", 0, 3.275))
pocket37 = body.newObject("PartDesign::Pocket", "Pocket036")
pocket37.Profile = sketch38
pocket37.Type = "ThroughAll"

sketch39 = body.newObject("Sketcher::SketchObject", "Sketch038")
sketch39.AttachmentSupport = (doc.getObject("XZ_Plane"), [""])
sketch39.MapMode = "FlatFace"
sketch39.addGeometry(Part.Circle(Vector(0, 0, 0), Vector(0, 0, 1), 1.6375), False)
sketch39.addConstraint(Sketcher.Constraint("Coincident", 0, 3, -1, 1))
sketch39.addConstraint(Sketcher.Constraint("Diameter", 0, 3.275))
pocket38 = body.newObject("PartDesign::Pocket", "Pocket037")
pocket38.Profile = sketch39
pocket38.Type = "ThroughAll"

sketch40 = body.newObject("Sketcher::SketchObject", "Sketch039")
sketch40.AttachmentSupport = (doc.getObject("XZ_Plane"), [""])
sketch40.MapMode = "FlatFace"
sketch40.addGeometry(Part.Circle(Vector(-10.286242, -14.157797, 0), Vector(0, 0, 1), 1.6375), False)
sketch40.addConstraint(Sketcher.Constraint("Diameter", 0, 3.275))
sketch40.addConstraint(Sketcher.Constraint("DistanceX", 0, 3, -1, 1, 10.286242))
sketch40.addConstraint(Sketcher.Constraint("DistanceY", 0, 3, -1, 1, 14.157797))
pocket39 = body.newObject("PartDesign::Pocket", "Pocket038")
pocket39.Profile = sketch40
pocket39.Type = "ThroughAll"

sketch41 = body.newObject("Sketcher::SketchObject", "Sketch040")
sketch41.AttachmentSupport = (doc.getObject("XZ_Plane"), [""])
sketch41.MapMode = "FlatFace"
sketch41.addGeometry(Part.Circle(Vector(-16.643489, -5.407797, 0), Vector(0, 0, 1), 1.6375), False)
sketch41.addConstraint(Sketcher.Constraint("Diameter", 0, 3.275))
sketch41.addConstraint(Sketcher.Constraint("DistanceX", 0, 3, -1, 1, 16.643489))
sketch41.addConstraint(Sketcher.Constraint("DistanceY", 0, 3, -1, 1, 5.407797))
pocket40 = body.newObject("PartDesign::Pocket", "Pocket039")
pocket40.Profile = sketch41
pocket40.Type = "ThroughAll"

sketch42 = body.newObject("Sketcher::SketchObject", "Sketch041")
sketch42.AttachmentSupport = (doc.getObject("XZ_Plane"), [""])
sketch42.MapMode = "FlatFace"
sketch42.addGeometry(Part.Circle(Vector(-16.643489, 5.407797, 0), Vector(0, 0, 1), 1.6375), False)
sketch42.addConstraint(Sketcher.Constraint("Diameter", 0, 3.275))
sketch42.addConstraint(Sketcher.Constraint("DistanceX", 0, 3, -1, 1, 16.643489))
sketch42.addConstraint(Sketcher.Constraint("DistanceY", -1, 1, 0, 3, 5.407797))
pocket41 = body.newObject("PartDesign::Pocket", "Pocket040")
pocket41.Profile = sketch42
pocket41.Type = "ThroughAll"

sketch43 = body.newObject("Sketcher::SketchObject", "Sketch042")
sketch43.AttachmentSupport = (doc.getObject("XZ_Plane"), [""])
sketch43.MapMode = "FlatFace"
sketch43.addGeometry(Part.Circle(Vector(-10.286242, 14.157797, 0), Vector(0, 0, 1), 1.6375), False)
sketch43.addConstraint(Sketcher.Constraint("Diameter", 0, 3.275))
sketch43.addConstraint(Sketcher.Constraint("DistanceX", 0, 3, -1, 1, 10.286242))
sketch43.addConstraint(Sketcher.Constraint("DistanceY", -1, 1, 0, 3, 14.157797))
pocket42 = body.newObject("PartDesign::Pocket", "Pocket041")
pocket42.Profile = sketch43
pocket42.Type = "ThroughAll"

sketch44 = body.newObject("Sketcher::SketchObject", "Sketch043")
sketch44.AttachmentSupport = (doc.getObject("XZ_Plane"), [""])
sketch44.MapMode = "FlatFace"
sketch44.addGeometry(Part.Circle(Vector(0, 17.5, 0), Vector(0, 0, 1), 1.6375), False)
sketch44.addConstraint(Sketcher.Constraint("PointOnObject", 0, 3, -2))
sketch44.addConstraint(Sketcher.Constraint("Diameter", 0, 3.275))
sketch44.addConstraint(Sketcher.Constraint("DistanceY", -1, 1, 0, 3, 17.5))
pocket43 = body.newObject("PartDesign::Pocket", "Pocket042")
pocket43.Profile = sketch44
pocket43.Type = "ThroughAll"

sketch45 = body.newObject("Sketcher::SketchObject", "Sketch044")
sketch45.AttachmentSupport = (doc.getObject("XZ_Plane"), [""])
sketch45.MapMode = "FlatFace"
sketch45.addGeometry(Part.Circle(Vector(10.286242, 14.157797, 0), Vector(0, 0, 1), 1.6375), False)
sketch45.addConstraint(Sketcher.Constraint("Diameter", 0, 3.275))
sketch45.addConstraint(Sketcher.Constraint("DistanceX", -1, 1, 0, 3, 10.286242))
sketch45.addConstraint(Sketcher.Constraint("DistanceY", -1, 1, 0, 3, 14.157797))
pocket44 = body.newObject("PartDesign::Pocket", "Pocket043")
pocket44.Profile = sketch45
pocket44.Type = "ThroughAll"

sketch46 = body.newObject("Sketcher::SketchObject", "Sketch045")
sketch46.AttachmentSupport = (doc.getObject("XZ_Plane"), [""])
sketch46.MapMode = "FlatFace"
sketch46.addGeometry(Part.Circle(Vector(16.643489, 5.407797, 0), Vector(0, 0, 1), 1.6375), False)
sketch46.addConstraint(Sketcher.Constraint("Diameter", 0, 3.275))
sketch46.addConstraint(Sketcher.Constraint("DistanceX", -1, 1, 0, 3, 16.643489))
sketch46.addConstraint(Sketcher.Constraint("DistanceY", -1, 1, 0, 3, 5.407797))
pocket45 = body.newObject("PartDesign::Pocket", "Pocket044")
pocket45.Profile = sketch46
pocket45.Type = "ThroughAll"

sketch47 = body.newObject("Sketcher::SketchObject", "Sketch046")
sketch47.AttachmentSupport = (doc.getObject("XZ_Plane"), [""])
sketch47.MapMode = "FlatFace"
sketch47.addGeometry(Part.Circle(Vector(16.643489, -5.407797, 0), Vector(0, 0, 1), 1.6375), False)
sketch47.addConstraint(Sketcher.Constraint("Diameter", 0, 3.275))
sketch47.addConstraint(Sketcher.Constraint("DistanceX", -1, 1, 0, 3, 16.643489))
sketch47.addConstraint(Sketcher.Constraint("DistanceY", 0, 3, -1, 1, 5.407797))
pocket46 = body.newObject("PartDesign::Pocket", "Pocket045")
pocket46.Profile = sketch47
pocket46.Type = "ThroughAll"

sketch48 = body.newObject("Sketcher::SketchObject", "Sketch047")
sketch48.AttachmentSupport = (doc.getObject("XZ_Plane"), [""])
sketch48.MapMode = "FlatFace"
sketch48.addGeometry(Part.Circle(Vector(10.286242, -14.157797, 0), Vector(0, 0, 1), 1.6375), False)
sketch48.addConstraint(Sketcher.Constraint("Diameter", 0, 3.275))
sketch48.addConstraint(Sketcher.Constraint("DistanceX", -1, 1, 0, 3, 10.286242))
sketch48.addConstraint(Sketcher.Constraint("DistanceY", 0, 3, -1, 1, 14.157797))
pocket47 = body.newObject("PartDesign::Pocket", "Pocket046")
pocket47.Profile = sketch48
pocket47.Type = "ThroughAll"

sketch49 = body.newObject("Sketcher::SketchObject", "Sketch048")
sketch49.AttachmentSupport = (doc.getObject("XZ_Plane"), [""])
sketch49.MapMode = "FlatFace"
sketch49.addGeometry(Part.Circle(Vector(-20.225425, 14.694631, 0), Vector(0, 0, 1), 1.65), False)
sketch49.addGeometry(Part.Circle(Vector(7.725425, 23.776413, 0), Vector(0, 0, 1), 1.65), False)
sketch49.addGeometry(Part.Circle(Vector(25, 0, 0), Vector(0, 0, 1), 1.65), False)
sketch49.addGeometry(Part.Circle(Vector(7.725425, -23.776413, 0), Vector(0, 0, 1), 1.65), False)
sketch49.addGeometry(Part.Circle(Vector(-20.225425, -14.694631, 0), Vector(0, 0, 1), 1.65), False)
sketch49.addConstraint(Sketcher.Constraint("Equal", 0, 1))
sketch49.addConstraint(Sketcher.Constraint("Equal", 1, 2))
sketch49.addConstraint(Sketcher.Constraint("Equal", 2, 3))
sketch49.addConstraint(Sketcher.Constraint("Equal", 3, 4))
sketch49.addConstraint(Sketcher.Constraint("Symmetric", 1, 3, 3, 3, -1))
sketch49.addConstraint(Sketcher.Constraint("Symmetric", 0, 3, 4, 3, -1))
sketch49.addConstraint(Sketcher.Constraint("PointOnObject", 2, 3, -1))
sketch49.addConstraint(Sketcher.Constraint("Diameter", 0, 3.3))
sketch49.addConstraint(Sketcher.Constraint("DistanceX", -1, 1, 2, 3, 25.0))
sketch49.addConstraint(Sketcher.Constraint("DistanceY", -1, 1, 0, 3, 14.694631))
sketch49.addConstraint(Sketcher.Constraint("DistanceX", 0, 3, 1, 3, 27.95085))
sketch49.addConstraint(Sketcher.Constraint("DistanceY", 0, 3, 1, 3, 9.081782))
sketch49.addConstraint(Sketcher.Constraint("DistanceX", 0, 3, -1, 1, 20.225425))
doc.recompute()
hole = body.newObject("PartDesign::Hole", "Hole")
hole.Profile = sketch49
hole.ThreadType = "None"
hole.Diameter = 3.3
hole.DepthType = "Dimension"
hole.Depth = 4
hole.DrillPoint = "Angled"
hole.DrillPointAngle = 118

sketch50 = body.newObject("Sketcher::SketchObject", "Sketch049")
sketch50.AttachmentSupport = (doc.getObject("XY_Plane"), [""])
sketch50.MapMode = "FlatFace"
add_polygon(sketch50, [(25, 10), (25, 6), (27, 6), (27, 10)])
sketch50.addConstraint(Sketcher.Constraint("Vertical", 0))
sketch50.addConstraint(Sketcher.Constraint("Horizontal", 1))
sketch50.addConstraint(Sketcher.Constraint("Vertical", 2))
sketch50.addConstraint(Sketcher.Constraint("Horizontal", 3))
sketch50.addConstraint(Sketcher.Constraint("DistanceX", 1, 1, 1, 2, 2.0))
sketch50.addConstraint(Sketcher.Constraint("DistanceY", 0, 2, 0, 1, 4.0))
sketch50.addConstraint(Sketcher.Constraint("DistanceX", -1, 1, 0, 2, 25.0))
sketch50.addConstraint(Sketcher.Constraint("DistanceY", -1, 1, 0, 2, 6.0))
groove = body.newObject("PartDesign::Groove", "Groove")
groove.Profile = sketch50
groove.ReferenceAxis = (sketch50, ["V_Axis"])
groove.Angle = 360

doc.recompute()
